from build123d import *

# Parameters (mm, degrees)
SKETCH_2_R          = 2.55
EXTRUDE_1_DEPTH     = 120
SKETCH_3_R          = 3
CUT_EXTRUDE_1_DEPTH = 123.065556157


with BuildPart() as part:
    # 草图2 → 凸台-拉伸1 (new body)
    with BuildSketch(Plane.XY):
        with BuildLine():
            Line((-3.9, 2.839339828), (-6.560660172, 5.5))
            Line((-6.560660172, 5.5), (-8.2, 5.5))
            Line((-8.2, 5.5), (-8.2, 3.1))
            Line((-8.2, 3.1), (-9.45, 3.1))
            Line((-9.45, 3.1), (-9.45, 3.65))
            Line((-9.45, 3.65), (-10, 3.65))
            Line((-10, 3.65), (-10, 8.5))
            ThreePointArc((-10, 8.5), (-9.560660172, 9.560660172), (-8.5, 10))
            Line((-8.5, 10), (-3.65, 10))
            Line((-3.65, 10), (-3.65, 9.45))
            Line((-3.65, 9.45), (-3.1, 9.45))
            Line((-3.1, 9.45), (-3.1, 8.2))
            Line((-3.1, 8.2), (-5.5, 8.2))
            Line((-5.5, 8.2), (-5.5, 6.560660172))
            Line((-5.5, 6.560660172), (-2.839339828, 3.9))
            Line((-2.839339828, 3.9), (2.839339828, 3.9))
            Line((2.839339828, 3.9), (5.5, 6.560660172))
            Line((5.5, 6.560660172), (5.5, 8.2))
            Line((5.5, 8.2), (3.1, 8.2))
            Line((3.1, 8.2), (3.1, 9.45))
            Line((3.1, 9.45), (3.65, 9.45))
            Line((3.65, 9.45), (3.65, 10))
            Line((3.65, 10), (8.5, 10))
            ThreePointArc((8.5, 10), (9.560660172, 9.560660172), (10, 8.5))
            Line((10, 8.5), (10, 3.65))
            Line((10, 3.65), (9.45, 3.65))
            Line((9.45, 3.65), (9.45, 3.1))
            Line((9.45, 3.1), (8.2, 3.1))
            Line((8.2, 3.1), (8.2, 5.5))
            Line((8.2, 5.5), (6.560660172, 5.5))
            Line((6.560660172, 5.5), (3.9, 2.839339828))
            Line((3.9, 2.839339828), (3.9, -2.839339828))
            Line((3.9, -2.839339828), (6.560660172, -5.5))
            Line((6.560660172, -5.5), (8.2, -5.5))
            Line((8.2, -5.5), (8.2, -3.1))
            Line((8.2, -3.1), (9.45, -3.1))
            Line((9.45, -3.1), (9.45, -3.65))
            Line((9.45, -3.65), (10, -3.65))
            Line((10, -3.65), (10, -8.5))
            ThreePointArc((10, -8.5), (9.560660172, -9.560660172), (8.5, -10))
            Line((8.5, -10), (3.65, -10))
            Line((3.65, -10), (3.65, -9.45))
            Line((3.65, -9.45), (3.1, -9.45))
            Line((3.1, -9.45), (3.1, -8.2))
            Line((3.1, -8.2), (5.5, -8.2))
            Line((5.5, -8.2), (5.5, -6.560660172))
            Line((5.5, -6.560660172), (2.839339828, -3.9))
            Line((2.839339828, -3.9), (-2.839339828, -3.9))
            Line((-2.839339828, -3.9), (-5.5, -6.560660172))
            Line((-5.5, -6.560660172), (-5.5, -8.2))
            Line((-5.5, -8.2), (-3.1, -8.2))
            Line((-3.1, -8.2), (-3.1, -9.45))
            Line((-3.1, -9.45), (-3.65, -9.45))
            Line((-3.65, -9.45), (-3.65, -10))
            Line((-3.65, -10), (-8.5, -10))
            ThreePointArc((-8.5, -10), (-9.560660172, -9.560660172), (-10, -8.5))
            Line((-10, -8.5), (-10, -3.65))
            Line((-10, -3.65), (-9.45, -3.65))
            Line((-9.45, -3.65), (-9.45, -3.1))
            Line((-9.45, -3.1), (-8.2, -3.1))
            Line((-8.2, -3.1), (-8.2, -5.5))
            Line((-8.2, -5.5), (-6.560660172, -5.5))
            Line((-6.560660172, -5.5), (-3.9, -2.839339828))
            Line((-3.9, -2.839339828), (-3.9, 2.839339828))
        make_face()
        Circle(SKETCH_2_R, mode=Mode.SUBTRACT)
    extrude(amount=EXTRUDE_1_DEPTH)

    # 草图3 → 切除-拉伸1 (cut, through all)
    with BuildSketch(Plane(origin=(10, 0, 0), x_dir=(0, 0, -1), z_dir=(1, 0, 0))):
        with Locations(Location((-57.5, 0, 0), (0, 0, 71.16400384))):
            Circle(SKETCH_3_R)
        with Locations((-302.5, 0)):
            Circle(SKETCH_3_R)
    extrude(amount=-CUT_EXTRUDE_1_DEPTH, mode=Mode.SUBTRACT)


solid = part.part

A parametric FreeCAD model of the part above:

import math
import FreeCAD as App
import Part
import Sketcher

doc = App.newDocument("Part")
body = doc.addObject("PartDesign::Body", "Body")

# Sketch on XY plane
sketch1 = doc.addObject("Sketcher::SketchObject", "Sketch")
body.addObject(sketch1)
sketch1.AttachmentSupport = (doc.XY_Plane, [""])
sketch1.MapMode = "FlatFace"
sketch1.addGeometry([
    Part.LineSegment(App.Vector(-6.56066, 5.5, 0), App.Vector(-3.9, 2.83934, 0)),  # 0
    Part.LineSegment(App.Vector(-3.9, 2.83934, 0), App.Vector(-3.9, -2.83934, 0)),  # 1
    Part.LineSegment(App.Vector(-3.9, -2.83934, 0), App.Vector(-6.56066, -5.5, 0)),  # 2
    Part.LineSegment(App.Vector(-6.56066, -5.5, 0), App.Vector(-8.2, -5.5, 0)),  # 3
    Part.LineSegment(App.Vector(-8.2, -5.5, 0), App.Vector(-8.2, -3.1, 0)),  # 4
    Part.LineSegment(App.Vector(-8.2, -3.1, 0), App.Vector(-9.45, -3.1, 0)),  # 5
    Part.LineSegment(App.Vector(-9.45, -3.1, 0), App.Vector(-9.45, -3.65, 0)),  # 6
    Part.LineSegment(App.Vector(-9.45, -3.65, 0), App.Vector(-10, -3.65, 0)),  # 7
    Part.LineSegment(App.Vector(-10, -3.65, 0), App.Vector(-10, -8.5, 0)),  # 8
    Part.ArcOfCircle(Part.Circle(App.Vector(-8.5, -8.5, 0), App.Vector(0, 0, 1), 1.5), math.radians(180), math.radians(270)),  # 9
    Part.LineSegment(App.Vector(-8.5, -10, 0), App.Vector(-3.65, -10, 0)),  # 10
    Part.LineSegment(App.Vector(-3.65, -10, 0), App.Vector(-3.65, -9.45, 0)),  # 11
    Part.LineSegment(App.Vector(-3.65, -9.45, 0), App.Vector(-3.1, -9.45, 0)),  # 12
    Part.LineSegment(App.Vector(-3.1, -9.45, 0), App.Vector(-3.1, -8.2, 0)),  # 13
    Part.LineSegment(App.Vector(-3.1, -8.2, 0), App.Vector(-5.5, -8.2, 0)),  # 14
    Part.LineSegment(App.Vector(-5.5, -8.2, 0), App.Vector(-5.5, -6.56066, 0)),  # 15
    Part.LineSegment(App.Vector(-5.5, -6.56066, 0), App.Vector(-2.83934, -3.9, 0)),  # 16
    Part.LineSegment(App.Vector(-2.83934, -3.9, 0), App.Vector(2.83934, -3.9, 0)),  # 17
    Part.LineSegment(App.Vector(2.83934, -3.9, 0), App.Vector(5.5, -6.56066, 0)),  # 18
    Part.LineSegment(App.Vector(5.5, -6.56066, 0), App.Vector(5.5, -8.2, 0)),  # 19
    Part.LineSegment(App.Vector(5.5, -8.2, 0), App.Vector(3.1, -8.2, 0)),  # 20
    Part.LineSegment(App.Vector(3.1, -8.2, 0), App.Vector(3.1, -9.45, 0)),  # 21
    Part.LineSegment(App.Vector(3.1, -9.45, 0), App.Vector(3.65, -9.45, 0)),  # 22
    Part.LineSegment(App.Vector(3.65, -9.45, 0), App.Vector(3.65, -10, 0)),  # 23
    Part.LineSegment(App.Vector(3.65, -10, 0), App.Vector(8.5, -10, 0)),  # 24
    Part.ArcOfCircle(Part.Circle(App.Vector(8.5, -8.5, 0), App.Vector(0, 0, 1), 1.5), math.radians(-90), math.radians(0)),  # 25
    Part.LineSegment(App.Vector(10, -8.5, 0), App.Vector(10, -3.65, 0)),  # 26
    Part.LineSegment(App.Vector(10, -3.65, 0), App.Vector(9.45, -3.65, 0)),  # 27
    Part.LineSegment(App.Vector(9.45, -3.65, 0), App.Vector(9.45, -3.1, 0)),  # 28
    Part.LineSegment(App.Vector(9.45, -3.1, 0), App.Vector(8.2, -3.1, 0)),  # 29
    Part.LineSegment(App.Vector(8.2, -3.1, 0), App.Vector(8.2, -5.5, 0)),  # 30
    Part.LineSegment(App.Vector(8.2, -5.5, 0), App.Vector(6.56066, -5.5, 0)),  # 31
    Part.LineSegment(App.Vector(6.56066, -5.5, 0), App.Vector(3.9, -2.83934, 0)),  # 32
    Part.LineSegment(App.Vector(3.9, -2.83934, 0), App.Vector(3.9, 2.83934, 0)),  # 33
    Part.LineSegment(App.Vector(3.9, 2.83934, 0), App.Vector(6.56066, 5.5, 0)),  # 34
    Part.LineSegment(App.Vector(6.56066, 5.5, 0), App.Vector(8.2, 5.5, 0)),  # 35
    Part.LineSegment(App.Vector(8.2, 5.5, 0), App.Vector(8.2, 3.1, 0)),  # 36
    Part.LineSegment(App.Vector(8.2, 3.1, 0), App.Vector(9.45, 3.1, 0)),  # 37
    Part.LineSegment(App.Vector(9.45, 3.1, 0), App.Vector(9.45, 3.65, 0)),  # 38
    Part.LineSegment(App.Vector(9.45, 3.65, 0), App.Vector(10, 3.65, 0)),  # 39
    Part.LineSegment(App.Vector(10, 3.65, 0), App.Vector(10, 8.5, 0)),  # 40
    Part.ArcOfCircle(Part.Circle(App.Vector(8.5, 8.5, 0), App.Vector(0, 0, 1), 1.5), math.radians(0), math.radians(90)),  # 41
    Part.LineSegment(App.Vector(8.5, 10, 0), App.Vector(3.65, 10, 0)),  # 42
    Part.LineSegment(App.Vector(3.65, 10, 0), App.Vector(3.65, 9.45, 0)),  # 43
    Part.LineSegment(App.Vector(3.65, 9.45, 0), App.Vector(3.1, 9.45, 0)),  # 44
    Part.LineSegment(App.Vector(3.1, 9.45, 0), App.Vector(3.1, 8.2, 0)),  # 45
    Part.LineSegment(App.Vector(3.1, 8.2, 0), App.Vector(5.5, 8.2, 0)),  # 46
    Part.LineSegment(App.Vector(5.5, 8.2, 0), App.Vector(5.5, 6.56066, 0)),  # 47
    Part.LineSegment(App.Vector(5.5, 6.56066, 0), App.Vector(2.83934, 3.9, 0)),  # 48
    Part.LineSegment(App.Vector(2.83934, 3.9, 0), App.Vector(-2.83934, 3.9, 0)),  # 49
    Part.LineSegment(App.Vector(-2.83934, 3.9, 0), App.Vector(-5.5, 6.56066, 0)),  # 50
    Part.LineSegment(App.Vector(-5.5, 6.56066, 0), App.Vector(-5.5, 8.2, 0)),  # 51
    Part.LineSegment(App.Vector(-5.5, 8.2, 0), App.Vector(-3.1, 8.2, 0)),  # 52
    Part.LineSegment(App.Vector(-3.1, 8.2, 0), App.Vector(-3.1, 9.45, 0)),  # 53
    Part.LineSegment(App.Vector(-3.1, 9.45, 0), App.Vector(-3.65, 9.45, 0)),  # 54
    Part.LineSegment(App.Vector(-3.65, 9.45, 0), App.Vector(-3.65, 10, 0)),  # 55
    Part.LineSegment(App.Vector(-3.65, 10, 0), App.Vector(-8.5, 10, 0)),  # 56
    Part.ArcOfCircle(Part.Circle(App.Vector(-8.5, 8.5, 0), App.Vector(0, 0, 1), 1.5), math.radians(90), math.radians(180)),  # 57
    Part.LineSegment(App.Vector(-10, 8.5, 0), App.Vector(-10, 3.65, 0)),  # 58
    Part.LineSegment(App.Vector(-10, 3.65, 0), App.Vector(-9.45, 3.65, 0)),  # 59
    Part.LineSegment(App.Vector(-9.45, 3.65, 0), App.Vector(-9.45, 3.1, 0)),  # 60
    Part.LineSegment(App.Vector(-9.45, 3.1, 0), App.Vector(-8.2, 3.1, 0)),  # 61
    Part.LineSegment(App.Vector(-8.2, 3.1, 0), App.Vector(-8.2, 5.5, 0)),  # 62
    Part.LineSegment(App.Vector(-8.2, 5.5, 0), App.Vector(-6.56066, 5.5, 0)),  # 63
    Part.Circle(App.Vector(0, 0, 0), App.Vector(0, 0, 1), 2.55),  # 64
], False)
sketch1.addConstraint([
    Sketcher.Constraint("Coincident", 0, 2, 1, 1),
    Sketcher.Constraint("Coincident", 1, 2, 2, 1),
    Sketcher.Constraint("Coincident", 2, 2, 3, 1),
    Sketcher.Constraint("Coincident", 3, 2, 4, 1),
    Sketcher.Constraint("Coincident", 4, 2, 5, 1),
    Sketcher.Constraint("Coincident", 5, 2, 6, 1),
    Sketcher.Constraint("Coincident", 6, 2, 7, 1),
    Sketcher.Constraint("Coincident", 7, 2, 8, 1),
    Sketcher.Constraint("Tangent", 8, 2, 9, 1),
    Sketcher.Constraint("Tangent", 9, 2, 10, 1),
    Sketcher.Constraint("Coincident", 10, 2, 11, 1),
    Sketcher.Constraint("Coincident", 11, 2, 12, 1),
    Sketcher.Constraint("Coincident", 12, 2, 13, 1),
    Sketcher.Constraint("Coincident", 13, 2, 14, 1),
    Sketcher.Constraint("Coincident", 14, 2, 15, 1),
    Sketcher.Constraint("Coincident", 15, 2, 16, 1),
    Sketcher.Constraint("Coincident", 16, 2, 17, 1),
    Sketcher.Constraint("Coincident", 17, 2, 18, 1),
    Sketcher.Constraint("Coincident", 18, 2, 19, 1),
    Sketcher.Constraint("Coincident", 19, 2, 20, 1),
    Sketcher.Constraint("Coincident", 20, 2, 21, 1),
    Sketcher.Constraint("Coincident", 21, 2, 22, 1),
    Sketcher.Constraint("Coincident", 22, 2, 23, 1),
    Sketcher.Constraint("Coincident", 23, 2, 24, 1),
    Sketcher.Constraint("Tangent", 24, 2, 25, 1),
    Sketcher.Constraint("Tangent", 25, 2, 26, 1),
    Sketcher.Constraint("Coincident", 26, 2, 27, 1),
    Sketcher.Constraint("Coincident", 27, 2, 28, 1),
    Sketcher.Constraint("Coincident", 28, 2, 29, 1),
    Sketcher.Constraint("Coincident", 29, 2, 30, 1),
    Sketcher.Constraint("Coincident", 30, 2, 31, 1),
    Sketcher.Constraint("Coincident", 31, 2, 32, 1),
    Sketcher.Constraint("Coincident", 32, 2, 33, 1),
    Sketcher.Constraint("Coincident", 33, 2, 34, 1),
    Sketcher.Constraint("Coincident", 34, 2, 35, 1),
    Sketcher.Constraint("Coincident", 35, 2, 36, 1),
    Sketcher.Constraint("Coincident", 36, 2, 37, 1),
    Sketcher.Constraint("Coincident", 37, 2, 38, 1),
    Sketcher.Constraint("Coincident", 38, 2, 39, 1),
    Sketcher.Constraint("Coincident", 39, 2, 40, 1),
    Sketcher.Constraint("Tangent", 40, 2, 41, 1),
    Sketcher.Constraint("Tangent", 41, 2, 42, 1),
    Sketcher.Constraint("Coincident", 42, 2, 43, 1),
    Sketcher.Constraint("Coincident", 43, 2, 44, 1),
    Sketcher.Constraint("Coincident", 44, 2, 45, 1),
    Sketcher.Constraint("Coincident", 45, 2, 46, 1),
    Sketcher.Constraint("Coincident", 46, 2, 47, 1),
    Sketcher.Constraint("Coincident", 47, 2, 48, 1),
    Sketcher.Constraint("Coincident", 48, 2, 49, 1),
    Sketcher.Constraint("Coincident", 49, 2, 50, 1),
    Sketcher.Constraint("Coincident", 50, 2, 51, 1),
    Sketcher.Constraint("Coincident", 51, 2, 52, 1),
    Sketcher.Constraint("Coincident", 52, 2, 53, 1),
    Sketcher.Constraint("Coincident", 53, 2, 54, 1),
    Sketcher.Constraint("Coincident", 54, 2, 55, 1),
    Sketcher.Constraint("Coincident", 55, 2, 56, 1),
    Sketcher.Constraint("Tangent", 56, 2, 57, 1),
    Sketcher.Constraint("Tangent", 57, 2, 58, 1),
    Sketcher.Constraint("Coincident", 58, 2, 59, 1),
    Sketcher.Constraint("Coincident", 59, 2, 60, 1),
    Sketcher.Constraint("Coincident", 60, 2, 61, 1),
    Sketcher.Constraint("Coincident", 61, 2, 62, 1),
    Sketcher.Constraint("Coincident", 62, 2, 63, 1),
    Sketcher.Constraint("Coincident", 63, 2, 0, 1),
    Sketcher.Constraint("Vertical", 1),
    Sketcher.Constraint("Horizontal", 3),
    Sketcher.Constraint("Vertical", 4),
    Sketcher.Constraint("Horizontal", 5),
    Sketcher.Constraint("Vertical", 6),
    Sketcher.Constraint("Horizontal", 7),
    Sketcher.Constraint("Vertical", 8),
    Sketcher.Constraint("Horizontal", 10),
    Sketcher.Constraint("Vertical", 11),
    Sketcher.Constraint("Horizontal", 12),
    Sketcher.Constraint("Vertical", 13),
    Sketcher.Constraint("Horizontal", 14),
    Sketcher.Constraint("Vertical", 15),
    Sketcher.Constraint("Horizontal", 17),
    Sketcher.Constraint("Vertical", 19),
    Sketcher.Constraint("Horizontal", 20),
    Sketcher.Constraint("Vertical", 21),
    Sketcher.Constraint("Horizontal", 22),
    Sketcher.Constraint("Vertical", 23),
    Sketcher.Constraint("Horizontal", 24),
    Sketcher.Constraint("Vertical", 26),
    Sketcher.Constraint("Horizontal", 27),
    Sketcher.Constraint("Vertical", 28),
    Sketcher.Constraint("Horizontal", 29),
    Sketcher.Constraint("Vertical", 30),
    Sketcher.Constraint("Horizontal", 31),
    Sketcher.Constraint("Vertical", 33),
    Sketcher.Constraint("Horizontal", 35),
    Sketcher.Constraint("Vertical", 36),
    Sketcher.Constraint("Horizontal", 37),
    Sketcher.Constraint("Vertical", 38),
    Sketcher.Constraint("Horizontal", 39),
    Sketcher.Constraint("Vertical", 40),
    Sketcher.Constraint("Horizontal", 42),
    Sketcher.Constraint("Vertical", 43),
    Sketcher.Constraint("Horizontal", 44),
    Sketcher.Constraint("Vertical", 45),
    Sketcher.Constraint("Horizontal", 46),
    Sketcher.Constraint("Vertical", 47),
    Sketcher.Constraint("Horizontal", 49),
    Sketcher.Constraint("Vertical", 51),
    Sketcher.Constraint("Horizontal", 52),
    Sketcher.Constraint("Vertical", 53),
    Sketcher.Constraint("Horizontal", 54),
    Sketcher.Constraint("Vertical", 55),
    Sketcher.Constraint("Horizontal", 56),
    Sketcher.Constraint("Vertical", 58),
    Sketcher.Constraint("Horizontal", 59),
    Sketcher.Constraint("Vertical", 60),
    Sketcher.Constraint("Horizontal", 61),
    Sketcher.Constraint("Vertical", 62),
    Sketcher.Constraint("Horizontal", 63),
    Sketcher.Constraint("Coincident", 64, 3, -1, 1),
    Sketcher.Constraint("Equal", 9, 25),
    Sketcher.Constraint("Equal", 25, 41),
    Sketcher.Constraint("Equal", 41, 57),
    Sketcher.Constraint("Symmetric", 9, 3, 41, 3, -1, 1),
    Sketcher.Constraint("Symmetric", 25, 3, 57, 3, -1, 1),
    Sketcher.Constraint("Symmetric", 0, 2, 32, 2, -1, 1),
    Sketcher.Constraint("Symmetric", 2, 2, 34, 2, -1, 1),
    Sketcher.Constraint("Symmetric", 4, 2, 36, 2, -1, 1),
    Sketcher.Constraint("Symmetric", 6, 2, 38, 2, -1, 1),
    Sketcher.Constraint("Symmetric", 11, 2, 43, 2, -1, 1),
    Sketcher.Constraint("Symmetric", 13, 2, 45, 2, -1, 1),
    Sketcher.Constraint("Symmetric", 15, 2, 47, 2, -1, 1),
    Sketcher.Constraint("Symmetric", 16, 2, 48, 2, -1, 1),
    Sketcher.Constraint("Symmetric", 18, 2, 50, 2, -1, 1),
    Sketcher.Constraint("Symmetric", 20, 2, 52, 2, -1, 1),
    Sketcher.Constraint("Symmetric", 22, 2, 54, 2, -1, 1),
    Sketcher.Constraint("Symmetric", 27, 2, 59, 2, -1, 1),
    Sketcher.Constraint("Symmetric", 29, 2, 61, 2, -1, 1),
    Sketcher.Constraint("Symmetric", 31, 2, 63, 2, -1, 1),
    Sketcher.Constraint("Symmetric", 9, 3, 25, 3, -2),
    Sketcher.Constraint("Symmetric", 15, 2, 18, 2, -2),
    Sketcher.Constraint("Symmetric", 13, 2, 20, 2, -2),
    Sketcher.Constraint("Symmetric", 11, 2, 22, 2, -2),
    Sketcher.Constraint("Symmetric", 6, 2, 27, 2, -2),
    Sketcher.Constraint("Symmetric", 4, 2, 29, 2, -2),
    Sketcher.Constraint("Symmetric", 2, 2, 31, 2, -2),
    Sketcher.Constraint("Perpendicular", 0, 2),
    Sketcher.Constraint("Parallel", 2, 16),
    Sketcher.Constraint("Perpendicular", 16, 18),
    Sketcher.Constraint("Perpendicular", 32, 34),
    Sketcher.Constraint("Perpendicular", 48, 50),
    Sketcher.Constraint("Horizontal", 1, 2, 32, 2),
    Sketcher.Constraint("Equal", 7, 12),
    Sketcher.Constraint("Equal", 49, 1),
    Sketcher.Constraint("Equal", 52, 4),
    Sketcher.Constraint("Equal", 59, 6),
    Sketcher.Constraint("Equal", 56, 8),
    Sketcher.Constraint("Equal", 6, 11),
    Sketcher.Constraint("Equal", 61, 13),
    Sketcher.Constraint("Equal", 63, 15),
    Sketcher.Constraint("Equal", 2, 16),
    Sketcher.Constraint("Diameter", 64, 5.1),
    Sketcher.Constraint("Radius", 9, 1.5),
    Sketcher.Constraint("DistanceX", 14, 2, 14, 1, 2.4),
    Sketcher.Constraint("DistanceX", 7, 2, -1, 1, 10.0),
    Sketcher.Constraint("DistanceX", 5, 2, 5, 1, 1.25),
    Sketcher.Constraint("DistanceX", 7, 2, 7, 1, 0.55),
    Sketcher.Constraint("DistanceX", 10, 1, 10, 2, 4.85),
    Sketcher.Constraint("DistanceX", 0, 2, -1, 1, 3.9),
    Sketcher.Constraint("DistanceX", 3, 2, 3, 1, 1.63934),
])
pad1 = doc.addObject("PartDesign::Pad", "Pad")
body.addObject(pad1)
pad1.Profile = sketch1
pad1.Length = 120

# Sketch on YZ plane
sketch2 = doc.addObject("Sketcher::SketchObject", "Sketch001")
body.addObject(sketch2)
sketch2.AttachmentSupport = (doc.YZ_Plane, [""])
sketch2.MapMode = "FlatFace"
sketch2.AttachmentOffset = App.Placement(App.Vector(0, 0, 10), App.Rotation())
sketch2.addGeometry([
    Part.Circle(App.Vector(0, 57.5, 0), App.Vector(0, 0, 1), 3),
    Part.Circle(App.Vector(0, 302.5, 0), App.Vector(0, 0, 1), 3),
], False)
sketch2.addConstraint([
    Sketcher.Constraint("Equal", 0, 1),
    Sketcher.Constraint("PointOnObject", 0, 3, -2),
    Sketcher.Constraint("PointOnObject", 1, 3, -2),
    Sketcher.Constraint("Diameter", 0, 6.0),
    Sketcher.Constraint("DistanceY", 0, 3, 1, 3, 245.0),
    Sketcher.Constraint("DistanceY", -1, 1, 0, 3, 57.5),
])
pocket1 = doc.addObject("PartDesign::Pocket", "Pocket")
body.addObject(pocket1)
pocket1.Profile = sketch2
pocket1.Type = "ThroughAll"

doc.recompute()
